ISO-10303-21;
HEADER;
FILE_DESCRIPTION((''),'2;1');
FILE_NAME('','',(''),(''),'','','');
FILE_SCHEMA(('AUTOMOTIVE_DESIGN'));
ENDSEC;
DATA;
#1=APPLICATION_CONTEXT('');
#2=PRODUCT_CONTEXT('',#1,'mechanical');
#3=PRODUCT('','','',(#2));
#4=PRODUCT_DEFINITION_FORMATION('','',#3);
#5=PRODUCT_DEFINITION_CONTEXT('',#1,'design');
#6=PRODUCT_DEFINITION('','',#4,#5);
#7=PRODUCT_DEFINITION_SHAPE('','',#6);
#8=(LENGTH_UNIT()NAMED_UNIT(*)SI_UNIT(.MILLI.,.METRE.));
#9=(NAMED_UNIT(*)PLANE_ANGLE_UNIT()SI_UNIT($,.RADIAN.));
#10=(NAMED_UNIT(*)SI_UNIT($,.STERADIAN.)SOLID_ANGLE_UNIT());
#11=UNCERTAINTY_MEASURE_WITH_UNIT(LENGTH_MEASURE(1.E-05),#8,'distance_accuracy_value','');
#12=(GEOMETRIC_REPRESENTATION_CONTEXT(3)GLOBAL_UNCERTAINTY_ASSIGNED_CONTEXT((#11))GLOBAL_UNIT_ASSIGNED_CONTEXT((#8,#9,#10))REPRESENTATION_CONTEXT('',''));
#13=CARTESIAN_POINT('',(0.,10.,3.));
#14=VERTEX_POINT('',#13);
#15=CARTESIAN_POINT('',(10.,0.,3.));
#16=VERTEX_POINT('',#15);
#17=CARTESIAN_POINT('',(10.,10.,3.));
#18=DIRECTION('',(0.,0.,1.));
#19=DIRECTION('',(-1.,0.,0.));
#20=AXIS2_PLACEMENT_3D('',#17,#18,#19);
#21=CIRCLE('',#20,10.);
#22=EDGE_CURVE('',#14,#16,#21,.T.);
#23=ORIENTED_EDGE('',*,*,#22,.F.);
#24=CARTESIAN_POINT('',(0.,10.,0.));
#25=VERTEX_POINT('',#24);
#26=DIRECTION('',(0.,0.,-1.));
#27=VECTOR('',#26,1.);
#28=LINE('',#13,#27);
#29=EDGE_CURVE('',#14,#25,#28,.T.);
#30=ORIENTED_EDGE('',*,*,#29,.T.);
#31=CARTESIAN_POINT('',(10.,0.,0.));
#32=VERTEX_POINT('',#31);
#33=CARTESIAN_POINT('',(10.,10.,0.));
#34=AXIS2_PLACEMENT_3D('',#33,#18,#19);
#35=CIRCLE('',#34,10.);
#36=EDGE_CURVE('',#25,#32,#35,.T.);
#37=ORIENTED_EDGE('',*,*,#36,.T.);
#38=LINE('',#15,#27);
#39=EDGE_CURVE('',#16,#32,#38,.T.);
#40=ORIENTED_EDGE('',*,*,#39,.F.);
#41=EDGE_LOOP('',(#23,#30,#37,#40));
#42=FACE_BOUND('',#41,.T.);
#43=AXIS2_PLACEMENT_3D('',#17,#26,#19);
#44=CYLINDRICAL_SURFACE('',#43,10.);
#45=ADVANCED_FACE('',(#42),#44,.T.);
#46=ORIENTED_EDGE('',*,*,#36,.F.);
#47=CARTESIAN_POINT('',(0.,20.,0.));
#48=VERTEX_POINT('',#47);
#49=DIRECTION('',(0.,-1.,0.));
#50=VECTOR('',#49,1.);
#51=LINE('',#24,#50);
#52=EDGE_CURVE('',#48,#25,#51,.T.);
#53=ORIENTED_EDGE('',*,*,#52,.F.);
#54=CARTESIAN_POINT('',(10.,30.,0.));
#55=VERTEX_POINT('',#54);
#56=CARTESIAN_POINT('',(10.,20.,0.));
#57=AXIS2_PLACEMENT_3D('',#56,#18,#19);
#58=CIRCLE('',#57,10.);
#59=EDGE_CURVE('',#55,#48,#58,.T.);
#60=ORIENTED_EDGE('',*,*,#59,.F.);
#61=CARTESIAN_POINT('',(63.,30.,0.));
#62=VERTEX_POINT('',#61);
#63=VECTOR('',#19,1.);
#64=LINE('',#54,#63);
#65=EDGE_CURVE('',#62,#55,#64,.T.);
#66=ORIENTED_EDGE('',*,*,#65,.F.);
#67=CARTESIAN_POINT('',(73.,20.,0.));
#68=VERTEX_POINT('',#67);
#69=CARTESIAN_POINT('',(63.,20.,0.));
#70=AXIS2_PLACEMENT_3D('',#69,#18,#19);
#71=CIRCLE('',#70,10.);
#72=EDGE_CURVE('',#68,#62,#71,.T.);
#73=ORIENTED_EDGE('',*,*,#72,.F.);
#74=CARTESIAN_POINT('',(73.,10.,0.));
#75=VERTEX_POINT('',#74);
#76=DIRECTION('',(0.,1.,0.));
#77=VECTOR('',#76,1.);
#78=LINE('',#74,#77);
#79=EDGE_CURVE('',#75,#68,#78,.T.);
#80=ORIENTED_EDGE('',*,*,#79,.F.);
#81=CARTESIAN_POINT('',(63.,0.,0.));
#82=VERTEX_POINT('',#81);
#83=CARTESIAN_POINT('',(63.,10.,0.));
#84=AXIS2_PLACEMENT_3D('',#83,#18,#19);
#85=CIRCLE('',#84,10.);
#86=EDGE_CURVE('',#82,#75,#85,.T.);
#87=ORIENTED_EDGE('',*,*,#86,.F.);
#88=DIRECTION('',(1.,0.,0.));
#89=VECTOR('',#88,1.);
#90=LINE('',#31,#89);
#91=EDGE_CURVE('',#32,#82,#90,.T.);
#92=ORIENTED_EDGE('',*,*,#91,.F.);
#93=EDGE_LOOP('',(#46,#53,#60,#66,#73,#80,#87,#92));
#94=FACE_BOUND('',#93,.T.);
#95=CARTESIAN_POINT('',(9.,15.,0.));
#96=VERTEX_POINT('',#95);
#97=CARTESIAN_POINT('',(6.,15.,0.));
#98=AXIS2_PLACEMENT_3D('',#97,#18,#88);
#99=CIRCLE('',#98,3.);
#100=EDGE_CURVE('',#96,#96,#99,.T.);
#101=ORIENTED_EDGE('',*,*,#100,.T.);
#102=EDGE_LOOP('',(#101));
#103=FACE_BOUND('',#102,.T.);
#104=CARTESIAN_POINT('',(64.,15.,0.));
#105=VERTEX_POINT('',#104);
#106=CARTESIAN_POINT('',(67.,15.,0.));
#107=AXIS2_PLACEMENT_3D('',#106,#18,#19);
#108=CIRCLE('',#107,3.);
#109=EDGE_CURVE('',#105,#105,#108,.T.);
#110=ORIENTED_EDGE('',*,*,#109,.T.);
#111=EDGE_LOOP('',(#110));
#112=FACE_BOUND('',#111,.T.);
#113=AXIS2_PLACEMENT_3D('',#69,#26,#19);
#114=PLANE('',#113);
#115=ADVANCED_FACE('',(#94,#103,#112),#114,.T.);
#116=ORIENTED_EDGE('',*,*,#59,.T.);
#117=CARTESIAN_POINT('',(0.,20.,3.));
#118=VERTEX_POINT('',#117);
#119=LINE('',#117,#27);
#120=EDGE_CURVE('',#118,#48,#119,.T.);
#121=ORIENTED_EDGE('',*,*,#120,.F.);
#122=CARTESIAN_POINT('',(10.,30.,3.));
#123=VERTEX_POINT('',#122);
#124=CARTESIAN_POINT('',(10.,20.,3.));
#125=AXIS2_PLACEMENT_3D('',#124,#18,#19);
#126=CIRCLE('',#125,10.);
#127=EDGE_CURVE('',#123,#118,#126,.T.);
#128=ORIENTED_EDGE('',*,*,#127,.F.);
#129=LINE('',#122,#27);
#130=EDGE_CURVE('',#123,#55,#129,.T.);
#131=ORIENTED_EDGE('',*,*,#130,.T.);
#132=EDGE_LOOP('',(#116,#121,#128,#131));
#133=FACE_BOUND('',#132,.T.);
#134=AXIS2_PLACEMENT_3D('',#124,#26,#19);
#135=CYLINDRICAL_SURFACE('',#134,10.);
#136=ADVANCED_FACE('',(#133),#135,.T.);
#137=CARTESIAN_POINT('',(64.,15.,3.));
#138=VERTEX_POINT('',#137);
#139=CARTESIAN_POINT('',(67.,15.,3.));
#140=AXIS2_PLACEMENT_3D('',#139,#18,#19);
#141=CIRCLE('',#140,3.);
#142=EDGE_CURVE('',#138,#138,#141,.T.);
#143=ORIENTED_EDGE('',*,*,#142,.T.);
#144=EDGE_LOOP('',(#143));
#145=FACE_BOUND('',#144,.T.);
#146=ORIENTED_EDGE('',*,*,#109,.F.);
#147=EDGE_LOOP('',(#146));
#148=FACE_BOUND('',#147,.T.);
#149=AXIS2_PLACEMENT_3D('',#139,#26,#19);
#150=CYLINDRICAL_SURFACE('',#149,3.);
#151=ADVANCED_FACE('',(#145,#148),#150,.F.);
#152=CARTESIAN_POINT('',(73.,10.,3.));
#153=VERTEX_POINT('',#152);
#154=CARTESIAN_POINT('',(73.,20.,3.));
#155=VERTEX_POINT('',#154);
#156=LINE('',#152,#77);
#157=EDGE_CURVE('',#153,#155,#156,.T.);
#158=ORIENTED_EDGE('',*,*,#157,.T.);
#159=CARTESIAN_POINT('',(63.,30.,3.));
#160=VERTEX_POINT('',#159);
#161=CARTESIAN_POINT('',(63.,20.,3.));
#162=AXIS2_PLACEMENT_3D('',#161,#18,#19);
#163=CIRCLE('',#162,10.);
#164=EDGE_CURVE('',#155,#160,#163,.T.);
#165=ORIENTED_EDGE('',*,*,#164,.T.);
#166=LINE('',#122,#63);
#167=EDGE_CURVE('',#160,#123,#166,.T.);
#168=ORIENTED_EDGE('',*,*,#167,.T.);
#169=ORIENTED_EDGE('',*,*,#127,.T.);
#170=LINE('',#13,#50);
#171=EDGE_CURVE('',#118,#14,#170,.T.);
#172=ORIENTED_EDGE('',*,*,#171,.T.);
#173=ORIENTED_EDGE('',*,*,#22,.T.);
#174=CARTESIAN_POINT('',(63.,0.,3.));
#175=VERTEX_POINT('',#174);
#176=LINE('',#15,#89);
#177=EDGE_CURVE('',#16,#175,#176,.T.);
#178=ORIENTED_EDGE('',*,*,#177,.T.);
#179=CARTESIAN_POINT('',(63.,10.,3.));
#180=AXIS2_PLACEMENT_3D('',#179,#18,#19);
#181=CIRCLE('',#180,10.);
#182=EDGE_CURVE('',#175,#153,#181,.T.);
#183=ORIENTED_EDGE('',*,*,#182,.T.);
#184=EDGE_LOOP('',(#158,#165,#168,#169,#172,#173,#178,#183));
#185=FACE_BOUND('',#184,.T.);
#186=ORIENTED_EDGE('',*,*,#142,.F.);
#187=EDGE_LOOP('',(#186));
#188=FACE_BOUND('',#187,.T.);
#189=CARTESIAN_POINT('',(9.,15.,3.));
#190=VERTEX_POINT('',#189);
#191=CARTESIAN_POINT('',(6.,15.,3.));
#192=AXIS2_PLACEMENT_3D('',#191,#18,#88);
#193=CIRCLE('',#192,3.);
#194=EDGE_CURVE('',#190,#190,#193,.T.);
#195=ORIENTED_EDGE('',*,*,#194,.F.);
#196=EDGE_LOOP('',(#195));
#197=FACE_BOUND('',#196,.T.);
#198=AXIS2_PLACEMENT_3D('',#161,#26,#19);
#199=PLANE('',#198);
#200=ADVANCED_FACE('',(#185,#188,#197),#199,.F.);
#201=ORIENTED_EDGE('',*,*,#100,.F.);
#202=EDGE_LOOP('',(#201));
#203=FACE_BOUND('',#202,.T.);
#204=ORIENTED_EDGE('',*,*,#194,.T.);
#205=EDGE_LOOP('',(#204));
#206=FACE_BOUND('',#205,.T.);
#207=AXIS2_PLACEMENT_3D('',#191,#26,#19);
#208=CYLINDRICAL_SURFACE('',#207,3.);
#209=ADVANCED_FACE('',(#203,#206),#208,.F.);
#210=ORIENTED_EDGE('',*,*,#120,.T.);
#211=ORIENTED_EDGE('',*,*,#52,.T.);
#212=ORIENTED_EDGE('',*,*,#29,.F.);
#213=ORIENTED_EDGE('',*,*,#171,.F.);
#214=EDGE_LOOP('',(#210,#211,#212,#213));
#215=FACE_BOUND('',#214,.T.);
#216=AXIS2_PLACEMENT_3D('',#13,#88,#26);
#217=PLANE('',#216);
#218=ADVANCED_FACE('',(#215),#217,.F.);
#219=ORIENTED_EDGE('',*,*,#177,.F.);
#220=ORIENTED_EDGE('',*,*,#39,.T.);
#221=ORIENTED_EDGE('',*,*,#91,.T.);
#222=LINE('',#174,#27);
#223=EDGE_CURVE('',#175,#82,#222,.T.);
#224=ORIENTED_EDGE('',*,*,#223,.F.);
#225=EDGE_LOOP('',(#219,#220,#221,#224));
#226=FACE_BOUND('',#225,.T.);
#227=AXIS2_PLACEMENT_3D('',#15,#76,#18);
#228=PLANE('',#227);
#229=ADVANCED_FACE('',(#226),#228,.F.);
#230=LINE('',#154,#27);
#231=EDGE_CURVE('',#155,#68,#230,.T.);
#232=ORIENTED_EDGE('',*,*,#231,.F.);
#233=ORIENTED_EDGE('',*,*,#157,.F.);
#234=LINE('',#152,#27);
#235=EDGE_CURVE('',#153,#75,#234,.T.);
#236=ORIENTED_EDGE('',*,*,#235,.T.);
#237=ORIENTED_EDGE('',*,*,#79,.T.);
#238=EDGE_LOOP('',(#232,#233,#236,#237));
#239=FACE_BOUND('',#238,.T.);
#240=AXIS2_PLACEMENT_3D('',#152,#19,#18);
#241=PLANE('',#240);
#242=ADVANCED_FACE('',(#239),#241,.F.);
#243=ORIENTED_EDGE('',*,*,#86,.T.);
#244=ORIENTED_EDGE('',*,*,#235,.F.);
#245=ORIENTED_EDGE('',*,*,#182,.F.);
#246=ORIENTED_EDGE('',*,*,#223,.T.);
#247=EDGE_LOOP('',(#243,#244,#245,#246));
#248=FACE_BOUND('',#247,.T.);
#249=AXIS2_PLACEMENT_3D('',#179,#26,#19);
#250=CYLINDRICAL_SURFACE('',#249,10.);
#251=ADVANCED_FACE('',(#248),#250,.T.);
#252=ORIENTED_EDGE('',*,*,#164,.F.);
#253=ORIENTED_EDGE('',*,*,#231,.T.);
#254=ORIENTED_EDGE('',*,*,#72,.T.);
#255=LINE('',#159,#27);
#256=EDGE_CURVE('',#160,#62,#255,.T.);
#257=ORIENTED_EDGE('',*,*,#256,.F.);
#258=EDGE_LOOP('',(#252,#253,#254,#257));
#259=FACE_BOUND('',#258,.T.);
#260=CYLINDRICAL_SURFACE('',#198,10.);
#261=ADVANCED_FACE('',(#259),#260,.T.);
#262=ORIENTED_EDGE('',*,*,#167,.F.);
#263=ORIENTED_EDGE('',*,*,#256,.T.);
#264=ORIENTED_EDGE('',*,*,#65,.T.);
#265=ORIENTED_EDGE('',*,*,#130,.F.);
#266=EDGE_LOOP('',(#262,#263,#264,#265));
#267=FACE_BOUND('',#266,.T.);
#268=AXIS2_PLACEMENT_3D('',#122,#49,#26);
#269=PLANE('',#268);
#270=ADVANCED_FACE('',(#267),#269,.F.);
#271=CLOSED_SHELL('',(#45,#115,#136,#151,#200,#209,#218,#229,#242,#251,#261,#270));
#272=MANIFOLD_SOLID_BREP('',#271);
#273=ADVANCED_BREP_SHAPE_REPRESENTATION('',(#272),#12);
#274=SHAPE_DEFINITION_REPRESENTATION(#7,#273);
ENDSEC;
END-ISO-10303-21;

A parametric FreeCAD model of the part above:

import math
import FreeCAD as App
import Part
import Sketcher
from FreeCAD import Vector
Q = App.Units.Quantity

doc = App.newDocument("Part")
body = doc.addObject("PartDesign::Body", "Body")

sketch1 = body.newObject("Sketcher::SketchObject", "Sketch")
sketch1.AttachmentSupport = (doc.getObject("XY_Plane"), [""])
sketch1.MapMode = "FlatFace"
sketch1.addGeometry([
    Part.LineSegment(Vector(10, 0, 0), Vector(63, 0, 0)),
    Part.ArcOfCircle(Part.Circle(Vector(63, 10, 0), Vector(0, 0, 1), 10), math.radians(-90), math.radians(0)),
    Part.LineSegment(Vector(73, 10, 0), Vector(73, 20, 0)),
    Part.ArcOfCircle(Part.Circle(Vector(63, 20, 0), Vector(0, 0, 1), 10), math.radians(0), math.radians(90)),
    Part.LineSegment(Vector(63, 30, 0), Vector(10, 30, 0)),
    Part.ArcOfCircle(Part.Circle(Vector(10, 20, 0), Vector(0, 0, 1), 10), math.radians(90), math.radians(180)),
    Part.LineSegment(Vector(0, 20, 0), Vector(0, 10, 0)),
    Part.ArcOfCircle(Part.Circle(Vector(10, 10, 0), Vector(0, 0, 1), 10), math.radians(180), math.radians(270)),
    Part.Circle(Vector(6, 15, 0), Vector(0, 0, 1), 3),
    Part.Circle(Vector(67, 15, 0), Vector(0, 0, 1), 3),
], False)
sketch1.addConstraint([
    Sketcher.Constraint("Tangent", 0, 2, 1, 1),
    Sketcher.Constraint("Tangent", 1, 2, 2, 1),
    Sketcher.Constraint("Tangent", 2, 2, 3, 1),
    Sketcher.Constraint("Tangent", 3, 2, 4, 1),
    Sketcher.Constraint("Tangent", 4, 2, 5, 1),
    Sketcher.Constraint("Tangent", 5, 2, 6, 1),
    Sketcher.Constraint("Tangent", 6, 2, 7, 1),
    Sketcher.Constraint("Tangent", 7, 2, 0, 1),
    Sketcher.Constraint("Horizontal", 0),
    Sketcher.Constraint("Vertical", 2),
    Sketcher.Constraint("Horizontal", 4),
    Sketcher.Constraint("Vertical", 6),
    Sketcher.Constraint("Equal", 1, 3),
    Sketcher.Constraint("Equal", 3, 5),
    Sketcher.Constraint("Equal", 5, 7),
    Sketcher.Constraint("Equal", 8, 9),
    Sketcher.Constraint("PointOnObject", 0, 2, -1),
    Sketcher.Constraint("PointOnObject", 5, 2, -2),
    Sketcher.Constraint("Horizontal", 8, 3, 9, 3),
    Sketcher.Constraint("Diameter", 8, Q("6 mm")),
    Sketcher.Constraint("Radius", 1, Q("10 mm")),
    Sketcher.Constraint("DistanceX", 0, 1, 0, 2, Q("53 mm")),
    Sketcher.Constraint("DistanceY", 2, 1, 2, 2, Q("10 mm")),
    Sketcher.Constraint("DistanceX", -1, 1, 8, 3, Q("6 mm")),
    Sketcher.Constraint("DistanceY", -1, 1, 8, 3, Q("15 mm")),
    Sketcher.Constraint("DistanceX", -1, 1, 9, 3, Q("67 mm")),
])
pad1 = body.newObject("PartDesign::Pad", "Pad")
pad1.Profile = sketch1
pad1.Length = 3

doc.recompute()
